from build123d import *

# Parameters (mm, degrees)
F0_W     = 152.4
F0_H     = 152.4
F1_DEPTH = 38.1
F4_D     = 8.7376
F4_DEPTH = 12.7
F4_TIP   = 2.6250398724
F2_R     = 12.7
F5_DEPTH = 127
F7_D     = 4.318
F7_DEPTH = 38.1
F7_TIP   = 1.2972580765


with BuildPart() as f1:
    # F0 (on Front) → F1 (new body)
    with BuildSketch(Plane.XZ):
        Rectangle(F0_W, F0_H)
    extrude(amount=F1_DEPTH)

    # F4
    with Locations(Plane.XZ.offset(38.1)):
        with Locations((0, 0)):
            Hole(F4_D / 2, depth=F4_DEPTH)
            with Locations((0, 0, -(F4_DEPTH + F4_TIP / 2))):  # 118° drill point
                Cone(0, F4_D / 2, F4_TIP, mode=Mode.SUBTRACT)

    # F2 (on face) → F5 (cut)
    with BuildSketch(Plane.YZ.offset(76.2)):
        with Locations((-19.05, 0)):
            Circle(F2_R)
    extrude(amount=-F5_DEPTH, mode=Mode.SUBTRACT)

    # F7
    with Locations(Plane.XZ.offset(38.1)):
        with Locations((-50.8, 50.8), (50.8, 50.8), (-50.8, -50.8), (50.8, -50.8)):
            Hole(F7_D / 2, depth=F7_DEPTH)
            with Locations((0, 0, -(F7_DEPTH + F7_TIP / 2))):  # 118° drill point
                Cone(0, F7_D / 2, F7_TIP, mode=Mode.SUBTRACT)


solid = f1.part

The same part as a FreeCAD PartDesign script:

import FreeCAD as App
import Part
import Sketcher
Q = App.Units.Quantity


def add_polygon(sketch, points):
    """Adds a closed chain of lines whose ends are joined by coincident constraints."""
    first, n = sketch.GeometryCount, len(points)
    for a, b in zip(points, points[1:] + points[:1]):
        sketch.addGeometry(Part.LineSegment(App.Vector(*a, 0), App.Vector(*b, 0)), False)
    for i in range(n):
        sketch.addConstraint(Sketcher.Constraint("Coincident", first + i, 2, first + (i + 1) % n, 1))

doc = App.newDocument("Part")
body = doc.addObject("PartDesign::Body", "Body")

sketch1 = body.newObject("Sketcher::SketchObject", "Sketch")
sketch1.AttachmentSupport = (doc.getObject("XZ_Plane"), [""])
sketch1.MapMode = "FlatFace"
add_polygon(sketch1, [(-76, 76), (-76, -76), (76, -76), (76, 76)])
sketch1.addConstraint(Sketcher.Constraint("Vertical", 0))
sketch1.addConstraint(Sketcher.Constraint("Horizontal", 1))
sketch1.addConstraint(Sketcher.Constraint("Vertical", 2))
sketch1.addConstraint(Sketcher.Constraint("Horizontal", 3))
sketch1.addConstraint(Sketcher.Constraint("Symmetric", 0, 2, 2, 2, -1, 1))
sketch1.addConstraint(Sketcher.Constraint("Equal", 3, 0))
sketch1.addConstraint(Sketcher.Constraint("DistanceX", 1, 1, 1, 2, Q("6 in")))
pad1 = body.newObject("PartDesign::Pad", "Pad")
pad1.Profile = sketch1
pad1.Length = Q("1.5 in")

sketch2 = body.newObject("Sketcher::SketchObject", "Sketch001")
sketch2.AttachmentSupport = (doc.getObject("XZ_Plane"), [""])
sketch2.MapMode = "FlatFace"
sketch2.AttachmentOffset = App.Placement(App.Vector(0, 0, 1.5 * 25.4), App.Rotation())
sketch2.addGeometry(Part.Circle(App.Vector(0, 0, 0), App.Vector(0, 0, 1), 4.4), False)
sketch2.addConstraint(Sketcher.Constraint("Coincident", 0, 3, -1, 1))
sketch2.addConstraint(Sketcher.Constraint("Diameter", 0, Q("0.344 in")))
doc.recompute()
hole = body.newObject("PartDesign::Hole", "Hole")
hole.Profile = sketch2
hole.ThreadType = "None"
hole.Diameter = Q("0.344 in")
hole.DepthType = "Dimension"
hole.Depth = Q("0.5 in")
hole.DrillPoint = "Angled"
hole.DrillPointAngle = 118

sketch3 = body.newObject("Sketcher::SketchObject", "Sketch002")
sketch3.AttachmentSupport = (doc.getObject("YZ_Plane"), [""])
sketch3.MapMode = "FlatFace"
sketch3.AttachmentOffset = App.Placement(App.Vector(0, 0, 3 * 25.4), App.Rotation())
sketch3.addGeometry(Part.Circle(App.Vector(-19, 0, 0), App.Vector(0, 0, 1), 13), False)
sketch3.addConstraint(Sketcher.Constraint("PointOnObject", 0, 3, -1))
sketch3.addConstraint(Sketcher.Constraint("Diameter", 0, Q("1 in")))
sketch3.addConstraint(Sketcher.Constraint("DistanceX", 0, 3, -1, 1, Q("0.75 in")))
pocket1 = body.newObject("PartDesign::Pocket", "Pocket")
pocket1.Profile = sketch3
pocket1.Length = Q("5 in")

sketch4 = body.newObject("Sketcher::SketchObject", "Sketch003")
sketch4.AttachmentSupport = (doc.getObject("XZ_Plane"), [""])
sketch4.MapMode = "FlatFace"
sketch4.AttachmentOffset = App.Placement(App.Vector(0, 0, 1.5 * 25.4), App.Rotation())
sketch4.addGeometry(Part.Circle(App.Vector(-50.8, 50.8, 0), App.Vector(0, 0, 1), 2.2), False)
sketch4.addGeometry(Part.Circle(App.Vector(50.8, 50.8, 0), App.Vector(0, 0, 1), 2.2), False)
sketch4.addGeometry(Part.Circle(App.Vector(-50.8, -50.8, 0), App.Vector(0, 0, 1), 2.2), False)
sketch4.addGeometry(Part.Circle(App.Vector(50.8, -50.8, 0), App.Vector(0, 0, 1), 2.2), False)
sketch4.addConstraint(Sketcher.Constraint("Equal", 0, 1))
sketch4.addConstraint(Sketcher.Constraint("Equal", 1, 2))
sketch4.addConstraint(Sketcher.Constraint("Equal", 2, 3))
sketch4.addConstraint(Sketcher.Constraint("Symmetric", 1, 3, 2, 3, -1, 1))
sketch4.addConstraint(Sketcher.Constraint("Symmetric", 0, 3, 3, 3, -1, 1))
sketch4.addConstraint(Sketcher.Constraint("Symmetric", 0, 3, 1, 3, -2))
sketch4.addConstraint(Sketcher.Constraint("Diameter", 0, Q("0.17 in")))
sketch4.addConstraint(Sketcher.Constraint("DistanceX", 0, 3, -1, 1, Q("2 in")))
sketch4.addConstraint(Sketcher.Constraint("DistanceY", -1, 1, 0, 3, Q("2 in")))
doc.recompute()
hole2 = body.newObject("PartDesign::Hole", "Hole001")
hole2.Profile = sketch4
hole2.ThreadType = "None"
hole2.Diameter = Q("0.17 in")
hole2.DepthType = "Dimension"
hole2.Depth = Q("1.5 in")
hole2.DrillPoint = "Angled"
hole2.DrillPointAngle = 118

doc.recompute()
